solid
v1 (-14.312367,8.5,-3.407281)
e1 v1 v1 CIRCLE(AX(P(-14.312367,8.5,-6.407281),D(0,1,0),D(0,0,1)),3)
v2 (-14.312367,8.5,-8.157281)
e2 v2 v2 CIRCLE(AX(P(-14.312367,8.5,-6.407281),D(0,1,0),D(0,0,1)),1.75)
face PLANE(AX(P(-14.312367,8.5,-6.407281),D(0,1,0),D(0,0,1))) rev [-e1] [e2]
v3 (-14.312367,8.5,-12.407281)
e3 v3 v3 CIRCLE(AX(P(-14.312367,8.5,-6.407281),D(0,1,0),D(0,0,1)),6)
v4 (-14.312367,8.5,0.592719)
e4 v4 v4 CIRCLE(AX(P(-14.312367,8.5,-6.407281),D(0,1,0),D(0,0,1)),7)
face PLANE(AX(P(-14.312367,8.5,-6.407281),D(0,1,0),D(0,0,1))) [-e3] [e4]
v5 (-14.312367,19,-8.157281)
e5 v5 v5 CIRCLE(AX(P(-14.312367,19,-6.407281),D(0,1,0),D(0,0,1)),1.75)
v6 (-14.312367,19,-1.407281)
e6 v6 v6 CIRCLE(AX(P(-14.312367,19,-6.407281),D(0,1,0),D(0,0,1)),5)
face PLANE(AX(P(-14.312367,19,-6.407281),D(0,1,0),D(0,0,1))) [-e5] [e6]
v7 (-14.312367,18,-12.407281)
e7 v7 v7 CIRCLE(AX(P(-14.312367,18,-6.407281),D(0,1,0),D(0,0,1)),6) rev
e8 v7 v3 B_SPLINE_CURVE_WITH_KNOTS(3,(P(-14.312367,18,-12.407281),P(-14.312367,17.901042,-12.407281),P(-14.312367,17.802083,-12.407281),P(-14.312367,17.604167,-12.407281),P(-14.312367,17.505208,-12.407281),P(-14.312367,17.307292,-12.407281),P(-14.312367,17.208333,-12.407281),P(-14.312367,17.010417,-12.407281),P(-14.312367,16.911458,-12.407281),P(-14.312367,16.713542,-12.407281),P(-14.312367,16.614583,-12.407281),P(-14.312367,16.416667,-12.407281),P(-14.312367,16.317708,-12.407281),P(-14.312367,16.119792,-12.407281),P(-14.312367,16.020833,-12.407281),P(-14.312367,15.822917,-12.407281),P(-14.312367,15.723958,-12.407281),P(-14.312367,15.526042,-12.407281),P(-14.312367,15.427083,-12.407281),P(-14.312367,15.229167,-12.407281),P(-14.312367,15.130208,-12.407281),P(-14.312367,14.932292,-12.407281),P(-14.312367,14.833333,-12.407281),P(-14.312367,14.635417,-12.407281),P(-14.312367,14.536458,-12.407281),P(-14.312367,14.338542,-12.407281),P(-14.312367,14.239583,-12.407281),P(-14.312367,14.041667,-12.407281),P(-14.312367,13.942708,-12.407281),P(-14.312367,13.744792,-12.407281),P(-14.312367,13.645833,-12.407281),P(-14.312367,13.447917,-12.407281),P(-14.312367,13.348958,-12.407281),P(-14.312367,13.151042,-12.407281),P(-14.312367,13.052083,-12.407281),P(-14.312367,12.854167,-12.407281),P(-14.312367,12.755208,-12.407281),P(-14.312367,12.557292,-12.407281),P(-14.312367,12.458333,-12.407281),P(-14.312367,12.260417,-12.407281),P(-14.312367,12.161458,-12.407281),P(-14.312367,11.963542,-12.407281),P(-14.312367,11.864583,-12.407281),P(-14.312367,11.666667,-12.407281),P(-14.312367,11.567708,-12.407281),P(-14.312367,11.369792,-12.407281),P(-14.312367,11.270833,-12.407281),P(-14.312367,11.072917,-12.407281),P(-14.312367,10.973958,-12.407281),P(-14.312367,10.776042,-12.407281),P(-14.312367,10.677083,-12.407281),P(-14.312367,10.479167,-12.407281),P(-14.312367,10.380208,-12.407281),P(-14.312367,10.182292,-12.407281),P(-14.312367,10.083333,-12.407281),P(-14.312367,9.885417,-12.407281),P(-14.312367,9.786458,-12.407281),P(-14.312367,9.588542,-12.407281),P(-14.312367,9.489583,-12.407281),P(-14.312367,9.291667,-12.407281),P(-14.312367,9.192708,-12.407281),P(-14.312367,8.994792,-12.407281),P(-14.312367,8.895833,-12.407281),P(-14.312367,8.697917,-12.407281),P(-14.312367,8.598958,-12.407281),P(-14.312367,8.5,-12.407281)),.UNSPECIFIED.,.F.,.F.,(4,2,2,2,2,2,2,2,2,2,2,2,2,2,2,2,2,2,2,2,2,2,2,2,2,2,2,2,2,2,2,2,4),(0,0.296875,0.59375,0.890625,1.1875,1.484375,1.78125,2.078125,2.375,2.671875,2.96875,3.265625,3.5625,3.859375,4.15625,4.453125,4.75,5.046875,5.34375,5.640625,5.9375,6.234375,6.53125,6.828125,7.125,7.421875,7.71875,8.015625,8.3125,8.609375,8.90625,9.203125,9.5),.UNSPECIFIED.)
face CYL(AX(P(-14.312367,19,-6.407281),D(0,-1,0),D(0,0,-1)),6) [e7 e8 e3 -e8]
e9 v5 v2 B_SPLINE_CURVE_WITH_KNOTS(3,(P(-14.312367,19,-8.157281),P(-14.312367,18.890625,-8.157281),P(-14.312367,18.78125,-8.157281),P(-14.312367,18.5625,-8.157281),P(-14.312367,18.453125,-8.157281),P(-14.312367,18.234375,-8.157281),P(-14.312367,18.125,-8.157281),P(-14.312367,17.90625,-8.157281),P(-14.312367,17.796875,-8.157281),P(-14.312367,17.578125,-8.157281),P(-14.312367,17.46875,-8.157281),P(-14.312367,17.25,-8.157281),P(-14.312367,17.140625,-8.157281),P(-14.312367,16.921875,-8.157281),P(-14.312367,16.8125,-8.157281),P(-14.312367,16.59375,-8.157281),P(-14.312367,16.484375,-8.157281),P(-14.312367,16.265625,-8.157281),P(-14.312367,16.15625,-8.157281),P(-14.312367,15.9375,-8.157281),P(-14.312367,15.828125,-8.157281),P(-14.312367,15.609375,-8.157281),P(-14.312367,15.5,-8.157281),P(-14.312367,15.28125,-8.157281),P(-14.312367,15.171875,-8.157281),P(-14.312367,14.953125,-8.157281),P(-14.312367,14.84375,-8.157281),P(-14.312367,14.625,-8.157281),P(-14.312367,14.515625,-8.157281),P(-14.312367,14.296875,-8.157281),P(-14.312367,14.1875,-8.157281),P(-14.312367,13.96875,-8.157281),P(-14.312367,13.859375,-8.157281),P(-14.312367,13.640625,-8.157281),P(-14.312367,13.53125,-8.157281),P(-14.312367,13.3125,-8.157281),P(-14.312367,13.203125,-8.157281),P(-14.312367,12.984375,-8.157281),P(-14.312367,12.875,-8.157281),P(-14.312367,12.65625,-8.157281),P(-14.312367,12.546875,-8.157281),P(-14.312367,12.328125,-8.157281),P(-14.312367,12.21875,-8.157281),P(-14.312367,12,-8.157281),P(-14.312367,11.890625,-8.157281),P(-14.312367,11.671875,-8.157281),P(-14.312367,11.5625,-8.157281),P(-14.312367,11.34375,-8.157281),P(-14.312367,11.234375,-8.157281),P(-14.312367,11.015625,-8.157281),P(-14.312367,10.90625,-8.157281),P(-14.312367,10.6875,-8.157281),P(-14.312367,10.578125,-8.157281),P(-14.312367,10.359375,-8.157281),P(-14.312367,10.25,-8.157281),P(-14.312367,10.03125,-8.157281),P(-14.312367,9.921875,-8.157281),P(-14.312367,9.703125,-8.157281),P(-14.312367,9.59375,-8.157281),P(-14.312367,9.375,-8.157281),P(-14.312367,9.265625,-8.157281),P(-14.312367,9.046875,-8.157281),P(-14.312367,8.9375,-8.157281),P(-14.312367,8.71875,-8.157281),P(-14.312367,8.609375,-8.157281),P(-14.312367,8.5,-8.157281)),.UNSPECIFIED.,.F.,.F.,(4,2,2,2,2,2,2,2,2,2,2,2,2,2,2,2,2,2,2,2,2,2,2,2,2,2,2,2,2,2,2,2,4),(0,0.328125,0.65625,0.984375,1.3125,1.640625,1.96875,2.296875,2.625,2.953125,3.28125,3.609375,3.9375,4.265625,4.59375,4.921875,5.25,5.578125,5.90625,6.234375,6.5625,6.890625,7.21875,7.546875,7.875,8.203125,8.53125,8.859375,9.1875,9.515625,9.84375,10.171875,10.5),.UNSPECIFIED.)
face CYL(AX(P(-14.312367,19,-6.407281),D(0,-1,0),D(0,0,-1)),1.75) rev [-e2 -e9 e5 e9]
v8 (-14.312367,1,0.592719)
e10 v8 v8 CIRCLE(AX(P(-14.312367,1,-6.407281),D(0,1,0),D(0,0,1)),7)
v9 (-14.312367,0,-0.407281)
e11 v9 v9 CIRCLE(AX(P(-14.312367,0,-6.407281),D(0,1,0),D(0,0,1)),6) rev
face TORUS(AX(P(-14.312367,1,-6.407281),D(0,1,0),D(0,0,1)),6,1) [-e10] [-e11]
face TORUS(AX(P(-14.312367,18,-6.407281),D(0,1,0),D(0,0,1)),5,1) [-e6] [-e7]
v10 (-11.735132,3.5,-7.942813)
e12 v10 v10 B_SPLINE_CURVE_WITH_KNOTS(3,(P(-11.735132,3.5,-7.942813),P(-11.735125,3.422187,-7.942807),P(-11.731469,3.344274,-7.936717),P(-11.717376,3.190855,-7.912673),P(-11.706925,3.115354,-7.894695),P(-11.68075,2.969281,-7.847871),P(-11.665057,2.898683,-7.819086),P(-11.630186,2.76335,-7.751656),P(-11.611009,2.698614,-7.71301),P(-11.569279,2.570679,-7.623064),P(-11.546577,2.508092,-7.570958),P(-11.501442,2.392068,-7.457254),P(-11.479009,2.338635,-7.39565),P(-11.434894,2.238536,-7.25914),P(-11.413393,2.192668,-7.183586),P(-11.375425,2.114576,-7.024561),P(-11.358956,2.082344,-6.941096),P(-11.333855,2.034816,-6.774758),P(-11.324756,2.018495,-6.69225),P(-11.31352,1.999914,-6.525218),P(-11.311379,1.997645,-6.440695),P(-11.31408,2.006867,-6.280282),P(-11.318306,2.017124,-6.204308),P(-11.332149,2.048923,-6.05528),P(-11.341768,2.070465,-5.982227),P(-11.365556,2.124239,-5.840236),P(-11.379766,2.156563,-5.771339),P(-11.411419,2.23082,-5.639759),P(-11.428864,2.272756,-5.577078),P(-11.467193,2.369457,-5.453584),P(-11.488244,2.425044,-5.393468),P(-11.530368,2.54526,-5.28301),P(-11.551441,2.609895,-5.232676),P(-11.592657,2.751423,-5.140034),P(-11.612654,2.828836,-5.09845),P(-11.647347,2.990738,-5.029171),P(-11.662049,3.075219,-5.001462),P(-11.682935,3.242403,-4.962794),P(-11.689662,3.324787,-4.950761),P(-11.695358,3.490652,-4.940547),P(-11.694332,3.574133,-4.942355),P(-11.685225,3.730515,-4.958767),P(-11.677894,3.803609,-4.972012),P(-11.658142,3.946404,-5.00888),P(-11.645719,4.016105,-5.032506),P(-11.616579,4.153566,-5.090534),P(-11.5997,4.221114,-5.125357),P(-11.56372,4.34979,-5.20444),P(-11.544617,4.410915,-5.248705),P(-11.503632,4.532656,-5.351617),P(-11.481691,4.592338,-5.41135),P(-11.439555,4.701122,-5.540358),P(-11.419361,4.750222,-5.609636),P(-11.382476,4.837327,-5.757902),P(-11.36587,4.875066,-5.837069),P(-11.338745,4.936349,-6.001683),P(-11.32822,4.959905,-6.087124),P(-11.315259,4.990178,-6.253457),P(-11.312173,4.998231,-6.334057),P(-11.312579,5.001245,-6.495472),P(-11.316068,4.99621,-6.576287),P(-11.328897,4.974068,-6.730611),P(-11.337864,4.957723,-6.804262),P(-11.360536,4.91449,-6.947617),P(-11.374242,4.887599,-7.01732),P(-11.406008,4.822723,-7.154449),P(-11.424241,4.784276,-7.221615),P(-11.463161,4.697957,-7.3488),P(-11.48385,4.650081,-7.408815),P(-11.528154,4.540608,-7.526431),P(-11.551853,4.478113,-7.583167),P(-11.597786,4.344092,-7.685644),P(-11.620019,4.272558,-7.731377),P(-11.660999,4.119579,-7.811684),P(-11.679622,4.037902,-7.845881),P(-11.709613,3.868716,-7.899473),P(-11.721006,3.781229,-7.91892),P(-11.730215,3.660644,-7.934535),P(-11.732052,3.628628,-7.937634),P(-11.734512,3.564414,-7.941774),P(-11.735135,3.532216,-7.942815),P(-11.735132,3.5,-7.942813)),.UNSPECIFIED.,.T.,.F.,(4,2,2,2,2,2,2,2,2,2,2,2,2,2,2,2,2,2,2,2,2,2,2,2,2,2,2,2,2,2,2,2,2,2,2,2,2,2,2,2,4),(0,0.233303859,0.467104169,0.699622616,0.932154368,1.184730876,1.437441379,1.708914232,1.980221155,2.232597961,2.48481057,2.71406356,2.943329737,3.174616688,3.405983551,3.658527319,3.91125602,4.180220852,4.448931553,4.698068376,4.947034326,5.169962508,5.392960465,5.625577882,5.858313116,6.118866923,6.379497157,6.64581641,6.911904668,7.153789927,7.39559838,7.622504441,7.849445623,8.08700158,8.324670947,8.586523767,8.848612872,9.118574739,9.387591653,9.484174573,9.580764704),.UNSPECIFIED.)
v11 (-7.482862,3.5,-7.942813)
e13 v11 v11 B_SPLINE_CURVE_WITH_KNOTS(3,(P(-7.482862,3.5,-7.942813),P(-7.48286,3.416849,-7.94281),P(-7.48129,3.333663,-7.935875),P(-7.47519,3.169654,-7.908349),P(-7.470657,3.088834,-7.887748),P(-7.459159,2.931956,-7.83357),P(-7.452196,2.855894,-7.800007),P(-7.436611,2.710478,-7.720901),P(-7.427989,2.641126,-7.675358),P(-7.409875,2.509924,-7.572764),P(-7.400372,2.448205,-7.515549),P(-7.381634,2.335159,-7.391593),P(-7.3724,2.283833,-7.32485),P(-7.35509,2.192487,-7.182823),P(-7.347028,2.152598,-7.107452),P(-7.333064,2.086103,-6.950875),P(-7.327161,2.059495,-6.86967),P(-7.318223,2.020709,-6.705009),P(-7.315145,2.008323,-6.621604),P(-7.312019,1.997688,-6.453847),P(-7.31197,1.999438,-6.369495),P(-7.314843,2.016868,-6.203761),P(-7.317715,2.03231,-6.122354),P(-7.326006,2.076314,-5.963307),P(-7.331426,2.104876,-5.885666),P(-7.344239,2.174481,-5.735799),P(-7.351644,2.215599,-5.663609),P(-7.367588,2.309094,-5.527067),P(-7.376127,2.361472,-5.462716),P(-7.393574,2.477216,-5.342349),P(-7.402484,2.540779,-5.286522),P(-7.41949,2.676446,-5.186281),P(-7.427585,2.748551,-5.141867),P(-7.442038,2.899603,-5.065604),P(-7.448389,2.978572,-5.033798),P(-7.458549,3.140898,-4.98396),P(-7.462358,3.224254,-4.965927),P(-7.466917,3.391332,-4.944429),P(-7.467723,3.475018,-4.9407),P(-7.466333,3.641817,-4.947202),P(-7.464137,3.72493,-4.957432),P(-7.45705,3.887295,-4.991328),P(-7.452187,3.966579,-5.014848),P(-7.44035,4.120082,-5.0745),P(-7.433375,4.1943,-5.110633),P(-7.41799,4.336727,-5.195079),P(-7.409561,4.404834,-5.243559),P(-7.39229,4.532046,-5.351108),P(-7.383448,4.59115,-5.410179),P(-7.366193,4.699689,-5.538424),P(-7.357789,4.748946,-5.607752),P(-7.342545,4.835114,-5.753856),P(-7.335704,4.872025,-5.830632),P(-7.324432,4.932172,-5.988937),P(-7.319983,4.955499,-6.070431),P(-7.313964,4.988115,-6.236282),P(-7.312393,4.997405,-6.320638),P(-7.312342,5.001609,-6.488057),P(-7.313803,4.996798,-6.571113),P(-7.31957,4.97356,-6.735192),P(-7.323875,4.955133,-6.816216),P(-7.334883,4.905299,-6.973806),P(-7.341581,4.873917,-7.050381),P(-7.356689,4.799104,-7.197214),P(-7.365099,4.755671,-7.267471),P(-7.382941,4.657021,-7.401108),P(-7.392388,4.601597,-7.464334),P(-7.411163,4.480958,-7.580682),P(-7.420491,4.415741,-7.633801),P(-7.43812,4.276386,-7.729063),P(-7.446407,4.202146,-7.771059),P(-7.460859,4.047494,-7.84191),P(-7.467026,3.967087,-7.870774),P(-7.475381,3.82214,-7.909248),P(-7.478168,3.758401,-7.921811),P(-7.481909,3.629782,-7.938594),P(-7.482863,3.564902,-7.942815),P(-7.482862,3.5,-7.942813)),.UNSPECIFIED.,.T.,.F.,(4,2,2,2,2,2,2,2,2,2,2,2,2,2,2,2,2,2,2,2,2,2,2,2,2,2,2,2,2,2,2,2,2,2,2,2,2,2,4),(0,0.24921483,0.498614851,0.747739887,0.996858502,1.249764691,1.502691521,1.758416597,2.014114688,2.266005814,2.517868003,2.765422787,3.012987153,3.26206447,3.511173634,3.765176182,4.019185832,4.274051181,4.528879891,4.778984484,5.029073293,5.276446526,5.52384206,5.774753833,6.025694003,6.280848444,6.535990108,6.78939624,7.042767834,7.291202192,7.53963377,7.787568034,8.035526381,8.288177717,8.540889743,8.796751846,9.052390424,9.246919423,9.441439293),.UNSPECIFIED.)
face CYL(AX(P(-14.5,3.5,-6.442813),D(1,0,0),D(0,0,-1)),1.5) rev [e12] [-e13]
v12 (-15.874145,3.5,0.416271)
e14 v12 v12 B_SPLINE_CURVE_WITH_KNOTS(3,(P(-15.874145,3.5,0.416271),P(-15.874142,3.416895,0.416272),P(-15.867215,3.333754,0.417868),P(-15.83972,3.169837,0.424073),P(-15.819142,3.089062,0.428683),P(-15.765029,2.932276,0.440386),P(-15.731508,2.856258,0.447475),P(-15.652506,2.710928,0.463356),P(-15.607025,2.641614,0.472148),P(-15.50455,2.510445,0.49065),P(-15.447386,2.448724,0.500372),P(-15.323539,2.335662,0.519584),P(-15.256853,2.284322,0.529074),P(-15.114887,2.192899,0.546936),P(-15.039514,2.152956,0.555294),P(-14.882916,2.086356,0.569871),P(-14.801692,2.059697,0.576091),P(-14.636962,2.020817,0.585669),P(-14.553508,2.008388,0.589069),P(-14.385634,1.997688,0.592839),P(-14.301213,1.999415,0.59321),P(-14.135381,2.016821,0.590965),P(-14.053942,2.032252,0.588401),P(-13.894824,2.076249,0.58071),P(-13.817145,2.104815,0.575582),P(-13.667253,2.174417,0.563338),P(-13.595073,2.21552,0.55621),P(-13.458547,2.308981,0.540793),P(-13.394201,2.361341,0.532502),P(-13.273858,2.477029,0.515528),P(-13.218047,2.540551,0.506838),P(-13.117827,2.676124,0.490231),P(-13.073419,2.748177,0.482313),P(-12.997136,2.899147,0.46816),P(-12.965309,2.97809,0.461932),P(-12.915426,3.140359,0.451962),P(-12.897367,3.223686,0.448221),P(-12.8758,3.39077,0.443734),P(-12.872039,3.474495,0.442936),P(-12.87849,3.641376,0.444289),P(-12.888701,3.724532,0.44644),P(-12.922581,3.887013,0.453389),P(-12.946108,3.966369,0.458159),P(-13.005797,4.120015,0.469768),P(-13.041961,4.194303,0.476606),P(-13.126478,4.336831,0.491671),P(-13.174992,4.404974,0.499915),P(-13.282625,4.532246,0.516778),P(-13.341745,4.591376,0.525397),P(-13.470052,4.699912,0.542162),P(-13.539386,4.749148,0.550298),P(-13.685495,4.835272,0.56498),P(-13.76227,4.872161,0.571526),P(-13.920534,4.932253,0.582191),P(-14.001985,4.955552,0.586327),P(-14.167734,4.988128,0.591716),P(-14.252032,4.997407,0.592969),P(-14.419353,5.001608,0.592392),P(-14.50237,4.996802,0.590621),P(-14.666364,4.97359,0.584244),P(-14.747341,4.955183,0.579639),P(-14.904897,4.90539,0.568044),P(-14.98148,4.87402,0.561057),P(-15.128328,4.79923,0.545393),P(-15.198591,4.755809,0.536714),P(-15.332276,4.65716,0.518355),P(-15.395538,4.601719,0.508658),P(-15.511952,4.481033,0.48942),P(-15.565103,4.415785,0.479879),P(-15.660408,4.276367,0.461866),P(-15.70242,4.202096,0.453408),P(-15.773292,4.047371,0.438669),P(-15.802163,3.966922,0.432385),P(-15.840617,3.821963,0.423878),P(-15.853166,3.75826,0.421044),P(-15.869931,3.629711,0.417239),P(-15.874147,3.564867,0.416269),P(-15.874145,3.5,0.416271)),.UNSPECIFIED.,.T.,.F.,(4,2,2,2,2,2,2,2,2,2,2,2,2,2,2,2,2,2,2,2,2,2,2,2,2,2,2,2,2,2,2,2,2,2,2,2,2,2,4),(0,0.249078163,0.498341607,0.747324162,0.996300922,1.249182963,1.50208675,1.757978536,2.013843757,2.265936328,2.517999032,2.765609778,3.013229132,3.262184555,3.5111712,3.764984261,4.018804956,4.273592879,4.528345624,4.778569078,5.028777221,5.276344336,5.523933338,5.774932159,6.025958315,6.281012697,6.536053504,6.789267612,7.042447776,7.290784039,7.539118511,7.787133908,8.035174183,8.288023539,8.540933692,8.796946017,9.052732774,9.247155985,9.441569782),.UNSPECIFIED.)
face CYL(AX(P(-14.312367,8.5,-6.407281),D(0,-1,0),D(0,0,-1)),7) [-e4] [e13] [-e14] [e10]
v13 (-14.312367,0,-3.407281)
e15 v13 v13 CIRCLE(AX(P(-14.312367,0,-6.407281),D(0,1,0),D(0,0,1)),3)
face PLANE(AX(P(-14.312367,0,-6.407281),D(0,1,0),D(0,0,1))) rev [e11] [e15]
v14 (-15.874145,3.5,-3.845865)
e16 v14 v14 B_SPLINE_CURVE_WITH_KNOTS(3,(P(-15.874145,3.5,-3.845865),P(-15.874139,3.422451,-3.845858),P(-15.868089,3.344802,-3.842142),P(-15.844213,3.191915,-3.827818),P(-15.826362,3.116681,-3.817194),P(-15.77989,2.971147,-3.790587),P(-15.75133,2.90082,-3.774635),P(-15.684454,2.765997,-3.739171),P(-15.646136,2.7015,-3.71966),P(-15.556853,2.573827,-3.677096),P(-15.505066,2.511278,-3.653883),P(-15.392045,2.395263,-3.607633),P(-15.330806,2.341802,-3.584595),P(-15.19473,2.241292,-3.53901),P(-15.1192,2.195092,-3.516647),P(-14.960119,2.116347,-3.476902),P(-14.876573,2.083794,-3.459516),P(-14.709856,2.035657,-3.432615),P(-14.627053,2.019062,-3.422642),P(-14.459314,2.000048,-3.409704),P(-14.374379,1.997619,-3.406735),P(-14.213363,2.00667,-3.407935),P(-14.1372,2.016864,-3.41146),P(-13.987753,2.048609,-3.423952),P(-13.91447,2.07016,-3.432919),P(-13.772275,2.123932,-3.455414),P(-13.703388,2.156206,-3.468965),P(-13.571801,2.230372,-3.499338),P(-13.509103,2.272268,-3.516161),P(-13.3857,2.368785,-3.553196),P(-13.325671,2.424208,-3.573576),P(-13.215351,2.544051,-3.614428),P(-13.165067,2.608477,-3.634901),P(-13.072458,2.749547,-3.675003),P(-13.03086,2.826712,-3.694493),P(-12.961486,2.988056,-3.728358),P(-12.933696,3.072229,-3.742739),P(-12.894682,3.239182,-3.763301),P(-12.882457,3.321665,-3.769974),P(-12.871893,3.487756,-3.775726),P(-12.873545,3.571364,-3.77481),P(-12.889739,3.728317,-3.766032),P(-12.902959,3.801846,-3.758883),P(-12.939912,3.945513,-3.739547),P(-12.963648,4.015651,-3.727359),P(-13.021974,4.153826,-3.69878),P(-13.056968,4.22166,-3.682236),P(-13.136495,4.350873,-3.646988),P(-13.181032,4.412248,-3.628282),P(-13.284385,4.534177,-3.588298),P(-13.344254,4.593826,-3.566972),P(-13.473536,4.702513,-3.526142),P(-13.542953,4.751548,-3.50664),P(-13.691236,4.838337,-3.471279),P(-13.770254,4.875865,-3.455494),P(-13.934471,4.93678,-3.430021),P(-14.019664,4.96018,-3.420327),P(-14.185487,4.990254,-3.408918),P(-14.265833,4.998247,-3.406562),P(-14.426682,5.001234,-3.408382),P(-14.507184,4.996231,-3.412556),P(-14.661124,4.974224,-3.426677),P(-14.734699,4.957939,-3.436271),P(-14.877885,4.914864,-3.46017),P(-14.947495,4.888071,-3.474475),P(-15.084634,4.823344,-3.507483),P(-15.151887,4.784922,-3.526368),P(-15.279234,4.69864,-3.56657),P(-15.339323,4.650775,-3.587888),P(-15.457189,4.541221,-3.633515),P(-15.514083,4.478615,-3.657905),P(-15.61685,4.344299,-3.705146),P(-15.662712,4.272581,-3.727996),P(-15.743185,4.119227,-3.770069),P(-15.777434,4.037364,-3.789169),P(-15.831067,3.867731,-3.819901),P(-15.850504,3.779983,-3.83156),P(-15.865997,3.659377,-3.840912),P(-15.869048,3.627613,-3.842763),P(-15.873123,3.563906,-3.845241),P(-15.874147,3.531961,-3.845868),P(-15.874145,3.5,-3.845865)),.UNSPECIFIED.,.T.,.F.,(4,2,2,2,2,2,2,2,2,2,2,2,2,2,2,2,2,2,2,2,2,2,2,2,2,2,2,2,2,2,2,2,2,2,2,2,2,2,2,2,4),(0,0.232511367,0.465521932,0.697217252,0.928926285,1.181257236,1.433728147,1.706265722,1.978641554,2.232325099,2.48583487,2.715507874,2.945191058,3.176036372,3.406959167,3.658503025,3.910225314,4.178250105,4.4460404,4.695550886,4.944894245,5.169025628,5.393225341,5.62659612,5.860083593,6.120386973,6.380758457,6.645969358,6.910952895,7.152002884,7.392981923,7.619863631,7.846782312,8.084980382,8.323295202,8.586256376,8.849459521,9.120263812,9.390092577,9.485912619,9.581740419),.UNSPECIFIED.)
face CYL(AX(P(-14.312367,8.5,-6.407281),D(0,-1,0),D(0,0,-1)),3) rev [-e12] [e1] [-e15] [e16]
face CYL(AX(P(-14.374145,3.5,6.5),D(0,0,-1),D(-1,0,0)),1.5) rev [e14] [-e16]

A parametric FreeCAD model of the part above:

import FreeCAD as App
import Part
import Sketcher

V = App.Vector
Q = App.Units.Quantity


def edges_at(feature, points):
    """Names of the edges that pass closest to the given points."""
    edges = feature.Shape.Edges
    near = lambda p: min(range(len(edges)), key=lambda i: edges[i].distToShape(Part.Vertex(*p))[0])
    return sorted({f"Edge{near(p) + 1}" for p in points})

doc = App.newDocument("Part")
body = doc.addObject("PartDesign::Body", "Body")

# Sketch on XZ plane
sketch1 = body.newObject("Sketcher::SketchObject", "Sketch")
sketch1.AttachmentSupport = (doc.getObject("XZ_Plane"), [""])
sketch1.MapMode = "FlatFace"
sketch1.addGeometry([
    Part.Circle(V(-14.3, -6.4, 0), V(0, 0, 1), 7),
    Part.Circle(V(-14.3, -6.4, 0), V(0, 0, 1), 3),
], False)
sketch1.addConstraint([
    Sketcher.Constraint("Coincident", 1, 3, 0, 3),
    Sketcher.Constraint("Diameter", 0, Q("14 mm")),
    Sketcher.Constraint("Diameter", 1, Q("6 mm")),
    Sketcher.Constraint("DistanceY", 0, 3, -1, 1, Q("6.407281 mm")),
    Sketcher.Constraint("DistanceX", 0, 3, -1, 1, Q("14.312367 mm")),
])
pad1 = body.newObject("PartDesign::Pad", "Pad")
pad1.Profile = sketch1
pad1.Length = 8.5
pad1.Reversed = True

# Sketch on XZ plane
sketch2 = body.newObject("Sketcher::SketchObject", "Sketch001")
sketch2.AttachmentSupport = (doc.getObject("XZ_Plane"), [""])
sketch2.MapMode = "FlatFace"
sketch2.AttachmentOffset = App.Placement(V(0, 0, -8.5), App.Rotation())
sketch2.addGeometry([
    Part.Circle(V(-14.3, -6.4, 0), V(0, 0, 1), 6),
    Part.Circle(V(-14.3, -6.4, 0), V(0, 0, 1), 1.8),
], False)
sketch2.addConstraint([
    Sketcher.Constraint("Coincident", 1, 3, 0, 3),
    Sketcher.Constraint("Diameter", 0, Q("12 mm")),
    Sketcher.Constraint("Diameter", 1, Q("3.5 mm")),
    Sketcher.Constraint("DistanceY", 0, 3, -1, 1, Q("6.407281 mm")),
    Sketcher.Constraint("DistanceX", 0, 3, -1, 1, Q("14.312367 mm")),
])
pad2 = body.newObject("PartDesign::Pad", "Pad001")
pad2.Profile = sketch2
pad2.Length = 10.5
pad2.Reversed = True
doc.recompute()

fillet = body.newObject("PartDesign::Fillet", "Fillet")
fillet.Base = (pad2, edges_at(pad2, [(-14.312, 19, -0.407), (-14.312, 0, -13.407)]))
fillet.Radius = 1

# Sketch on YZ plane
sketch3 = body.newObject("Sketcher::SketchObject", "Sketch002")
sketch3.AttachmentSupport = (doc.getObject("YZ_Plane"), [""])
sketch3.MapMode = "FlatFace"
sketch3.addGeometry(Part.Circle(V(3.5, -6.4, 0), V(0, 0, 1), 1.5), False)
sketch3.addConstraint([
    Sketcher.Constraint("Diameter", 0, Q("3 mm")),
    Sketcher.Constraint("DistanceX", -1, 1, 0, 3, Q("3.5 mm")),
    Sketcher.Constraint("DistanceY", 0, 3, -1, 1, Q("6.442813 mm")),
])
pocket1 = body.newObject("PartDesign::Pocket", "Pocket")
pocket1.Profile = sketch3
pocket1.Length = 14.5

# Sketch on XY plane
sketch4 = body.newObject("Sketcher::SketchObject", "Sketch003")
sketch4.AttachmentSupport = (doc.getObject("XY_Plane"), [""])
sketch4.MapMode = "FlatFace"
sketch4.addGeometry(Part.Circle(V(-14.4, 3.5, 0), V(0, 0, 1), 1.5), False)
sketch4.addConstraint([
    Sketcher.Constraint("Diameter", 0, Q("3 mm")),
    Sketcher.Constraint("DistanceY", -1, 1, 0, 3, Q("3.5 mm")),
    Sketcher.Constraint("DistanceX", 0, 3, -1, 1, Q("14.374145 mm")),
])
pocket2 = body.newObject("PartDesign::Pocket", "Pocket001")
pocket2.Profile = sketch4
pocket2.Type = "TwoLengths"
pocket2.Length = 6.5
pocket2.Length2 = 6.5
pocket2.Reversed = True

doc.recompute()
